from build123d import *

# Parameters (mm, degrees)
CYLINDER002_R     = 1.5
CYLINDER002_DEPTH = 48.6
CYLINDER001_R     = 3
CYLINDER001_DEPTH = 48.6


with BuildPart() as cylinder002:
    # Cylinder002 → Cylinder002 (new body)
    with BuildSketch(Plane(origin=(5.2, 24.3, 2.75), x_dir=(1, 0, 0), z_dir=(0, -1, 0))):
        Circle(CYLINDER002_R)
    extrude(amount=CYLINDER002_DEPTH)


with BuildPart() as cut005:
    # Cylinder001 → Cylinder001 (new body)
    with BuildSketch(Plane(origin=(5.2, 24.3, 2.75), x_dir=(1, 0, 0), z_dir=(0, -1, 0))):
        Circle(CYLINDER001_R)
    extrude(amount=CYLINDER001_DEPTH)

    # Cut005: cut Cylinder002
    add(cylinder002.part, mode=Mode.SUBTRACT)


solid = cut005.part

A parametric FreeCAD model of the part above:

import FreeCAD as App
import Part
import Sketcher
Q = App.Units.Quantity

doc = App.newDocument("Part")
body = doc.addObject("PartDesign::Body", "Body")

# Sketch on XZ plane
sketch1 = body.newObject("Sketcher::SketchObject", "Sketch")
sketch1.AttachmentSupport = (doc.getObject("XZ_Plane"), [""])
sketch1.MapMode = "FlatFace"
sketch1.AttachmentOffset = App.Placement(App.Vector(0, 0, -24.3), App.Rotation())
sketch1.addGeometry(Part.Circle(App.Vector(5.2, 2.8, 0), App.Vector(0, 0, 1), 1.5), False)
sketch1.addConstraint(Sketcher.Constraint("Diameter", 0, Q("3 mm")))
sketch1.addConstraint(Sketcher.Constraint("DistanceX", -1, 1, 0, 3, Q("5.2 mm")))
sketch1.addConstraint(Sketcher.Constraint("DistanceY", -1, 1, 0, 3, Q("2.75 mm")))
pad1 = body.newObject("PartDesign::Pad", "Pad")
pad1.Profile = sketch1
pad1.Length = 48.6
body2 = doc.addObject("PartDesign::Body", "Body001")

# Sketch on XZ plane
sketch2 = body2.newObject("Sketcher::SketchObject", "Sketch001")
sketch2.AttachmentSupport = (doc.getObject("XZ_Plane001"), [""])
sketch2.MapMode = "FlatFace"
sketch2.AttachmentOffset = App.Placement(App.Vector(0, 0, -24.3), App.Rotation())
sketch2.addGeometry(Part.Circle(App.Vector(5.2, 2.8, 0), App.Vector(0, 0, 1), 3), False)
sketch2.addConstraint(Sketcher.Constraint("Diameter", 0, Q("6 mm")))
sketch2.addConstraint(Sketcher.Constraint("DistanceX", -1, 1, 0, 3, Q("5.2 mm")))
sketch2.addConstraint(Sketcher.Constraint("DistanceY", -1, 1, 0, 3, Q("2.75 mm")))
pad2 = body2.newObject("PartDesign::Pad", "Pad001")
pad2.Profile = sketch2
pad2.Length = 48.6
doc.recompute()

boolean = body2.newObject("PartDesign::Boolean", "Boolean")
boolean.Type = "Cut"
boolean.addObjects([body])

doc.recompute()
